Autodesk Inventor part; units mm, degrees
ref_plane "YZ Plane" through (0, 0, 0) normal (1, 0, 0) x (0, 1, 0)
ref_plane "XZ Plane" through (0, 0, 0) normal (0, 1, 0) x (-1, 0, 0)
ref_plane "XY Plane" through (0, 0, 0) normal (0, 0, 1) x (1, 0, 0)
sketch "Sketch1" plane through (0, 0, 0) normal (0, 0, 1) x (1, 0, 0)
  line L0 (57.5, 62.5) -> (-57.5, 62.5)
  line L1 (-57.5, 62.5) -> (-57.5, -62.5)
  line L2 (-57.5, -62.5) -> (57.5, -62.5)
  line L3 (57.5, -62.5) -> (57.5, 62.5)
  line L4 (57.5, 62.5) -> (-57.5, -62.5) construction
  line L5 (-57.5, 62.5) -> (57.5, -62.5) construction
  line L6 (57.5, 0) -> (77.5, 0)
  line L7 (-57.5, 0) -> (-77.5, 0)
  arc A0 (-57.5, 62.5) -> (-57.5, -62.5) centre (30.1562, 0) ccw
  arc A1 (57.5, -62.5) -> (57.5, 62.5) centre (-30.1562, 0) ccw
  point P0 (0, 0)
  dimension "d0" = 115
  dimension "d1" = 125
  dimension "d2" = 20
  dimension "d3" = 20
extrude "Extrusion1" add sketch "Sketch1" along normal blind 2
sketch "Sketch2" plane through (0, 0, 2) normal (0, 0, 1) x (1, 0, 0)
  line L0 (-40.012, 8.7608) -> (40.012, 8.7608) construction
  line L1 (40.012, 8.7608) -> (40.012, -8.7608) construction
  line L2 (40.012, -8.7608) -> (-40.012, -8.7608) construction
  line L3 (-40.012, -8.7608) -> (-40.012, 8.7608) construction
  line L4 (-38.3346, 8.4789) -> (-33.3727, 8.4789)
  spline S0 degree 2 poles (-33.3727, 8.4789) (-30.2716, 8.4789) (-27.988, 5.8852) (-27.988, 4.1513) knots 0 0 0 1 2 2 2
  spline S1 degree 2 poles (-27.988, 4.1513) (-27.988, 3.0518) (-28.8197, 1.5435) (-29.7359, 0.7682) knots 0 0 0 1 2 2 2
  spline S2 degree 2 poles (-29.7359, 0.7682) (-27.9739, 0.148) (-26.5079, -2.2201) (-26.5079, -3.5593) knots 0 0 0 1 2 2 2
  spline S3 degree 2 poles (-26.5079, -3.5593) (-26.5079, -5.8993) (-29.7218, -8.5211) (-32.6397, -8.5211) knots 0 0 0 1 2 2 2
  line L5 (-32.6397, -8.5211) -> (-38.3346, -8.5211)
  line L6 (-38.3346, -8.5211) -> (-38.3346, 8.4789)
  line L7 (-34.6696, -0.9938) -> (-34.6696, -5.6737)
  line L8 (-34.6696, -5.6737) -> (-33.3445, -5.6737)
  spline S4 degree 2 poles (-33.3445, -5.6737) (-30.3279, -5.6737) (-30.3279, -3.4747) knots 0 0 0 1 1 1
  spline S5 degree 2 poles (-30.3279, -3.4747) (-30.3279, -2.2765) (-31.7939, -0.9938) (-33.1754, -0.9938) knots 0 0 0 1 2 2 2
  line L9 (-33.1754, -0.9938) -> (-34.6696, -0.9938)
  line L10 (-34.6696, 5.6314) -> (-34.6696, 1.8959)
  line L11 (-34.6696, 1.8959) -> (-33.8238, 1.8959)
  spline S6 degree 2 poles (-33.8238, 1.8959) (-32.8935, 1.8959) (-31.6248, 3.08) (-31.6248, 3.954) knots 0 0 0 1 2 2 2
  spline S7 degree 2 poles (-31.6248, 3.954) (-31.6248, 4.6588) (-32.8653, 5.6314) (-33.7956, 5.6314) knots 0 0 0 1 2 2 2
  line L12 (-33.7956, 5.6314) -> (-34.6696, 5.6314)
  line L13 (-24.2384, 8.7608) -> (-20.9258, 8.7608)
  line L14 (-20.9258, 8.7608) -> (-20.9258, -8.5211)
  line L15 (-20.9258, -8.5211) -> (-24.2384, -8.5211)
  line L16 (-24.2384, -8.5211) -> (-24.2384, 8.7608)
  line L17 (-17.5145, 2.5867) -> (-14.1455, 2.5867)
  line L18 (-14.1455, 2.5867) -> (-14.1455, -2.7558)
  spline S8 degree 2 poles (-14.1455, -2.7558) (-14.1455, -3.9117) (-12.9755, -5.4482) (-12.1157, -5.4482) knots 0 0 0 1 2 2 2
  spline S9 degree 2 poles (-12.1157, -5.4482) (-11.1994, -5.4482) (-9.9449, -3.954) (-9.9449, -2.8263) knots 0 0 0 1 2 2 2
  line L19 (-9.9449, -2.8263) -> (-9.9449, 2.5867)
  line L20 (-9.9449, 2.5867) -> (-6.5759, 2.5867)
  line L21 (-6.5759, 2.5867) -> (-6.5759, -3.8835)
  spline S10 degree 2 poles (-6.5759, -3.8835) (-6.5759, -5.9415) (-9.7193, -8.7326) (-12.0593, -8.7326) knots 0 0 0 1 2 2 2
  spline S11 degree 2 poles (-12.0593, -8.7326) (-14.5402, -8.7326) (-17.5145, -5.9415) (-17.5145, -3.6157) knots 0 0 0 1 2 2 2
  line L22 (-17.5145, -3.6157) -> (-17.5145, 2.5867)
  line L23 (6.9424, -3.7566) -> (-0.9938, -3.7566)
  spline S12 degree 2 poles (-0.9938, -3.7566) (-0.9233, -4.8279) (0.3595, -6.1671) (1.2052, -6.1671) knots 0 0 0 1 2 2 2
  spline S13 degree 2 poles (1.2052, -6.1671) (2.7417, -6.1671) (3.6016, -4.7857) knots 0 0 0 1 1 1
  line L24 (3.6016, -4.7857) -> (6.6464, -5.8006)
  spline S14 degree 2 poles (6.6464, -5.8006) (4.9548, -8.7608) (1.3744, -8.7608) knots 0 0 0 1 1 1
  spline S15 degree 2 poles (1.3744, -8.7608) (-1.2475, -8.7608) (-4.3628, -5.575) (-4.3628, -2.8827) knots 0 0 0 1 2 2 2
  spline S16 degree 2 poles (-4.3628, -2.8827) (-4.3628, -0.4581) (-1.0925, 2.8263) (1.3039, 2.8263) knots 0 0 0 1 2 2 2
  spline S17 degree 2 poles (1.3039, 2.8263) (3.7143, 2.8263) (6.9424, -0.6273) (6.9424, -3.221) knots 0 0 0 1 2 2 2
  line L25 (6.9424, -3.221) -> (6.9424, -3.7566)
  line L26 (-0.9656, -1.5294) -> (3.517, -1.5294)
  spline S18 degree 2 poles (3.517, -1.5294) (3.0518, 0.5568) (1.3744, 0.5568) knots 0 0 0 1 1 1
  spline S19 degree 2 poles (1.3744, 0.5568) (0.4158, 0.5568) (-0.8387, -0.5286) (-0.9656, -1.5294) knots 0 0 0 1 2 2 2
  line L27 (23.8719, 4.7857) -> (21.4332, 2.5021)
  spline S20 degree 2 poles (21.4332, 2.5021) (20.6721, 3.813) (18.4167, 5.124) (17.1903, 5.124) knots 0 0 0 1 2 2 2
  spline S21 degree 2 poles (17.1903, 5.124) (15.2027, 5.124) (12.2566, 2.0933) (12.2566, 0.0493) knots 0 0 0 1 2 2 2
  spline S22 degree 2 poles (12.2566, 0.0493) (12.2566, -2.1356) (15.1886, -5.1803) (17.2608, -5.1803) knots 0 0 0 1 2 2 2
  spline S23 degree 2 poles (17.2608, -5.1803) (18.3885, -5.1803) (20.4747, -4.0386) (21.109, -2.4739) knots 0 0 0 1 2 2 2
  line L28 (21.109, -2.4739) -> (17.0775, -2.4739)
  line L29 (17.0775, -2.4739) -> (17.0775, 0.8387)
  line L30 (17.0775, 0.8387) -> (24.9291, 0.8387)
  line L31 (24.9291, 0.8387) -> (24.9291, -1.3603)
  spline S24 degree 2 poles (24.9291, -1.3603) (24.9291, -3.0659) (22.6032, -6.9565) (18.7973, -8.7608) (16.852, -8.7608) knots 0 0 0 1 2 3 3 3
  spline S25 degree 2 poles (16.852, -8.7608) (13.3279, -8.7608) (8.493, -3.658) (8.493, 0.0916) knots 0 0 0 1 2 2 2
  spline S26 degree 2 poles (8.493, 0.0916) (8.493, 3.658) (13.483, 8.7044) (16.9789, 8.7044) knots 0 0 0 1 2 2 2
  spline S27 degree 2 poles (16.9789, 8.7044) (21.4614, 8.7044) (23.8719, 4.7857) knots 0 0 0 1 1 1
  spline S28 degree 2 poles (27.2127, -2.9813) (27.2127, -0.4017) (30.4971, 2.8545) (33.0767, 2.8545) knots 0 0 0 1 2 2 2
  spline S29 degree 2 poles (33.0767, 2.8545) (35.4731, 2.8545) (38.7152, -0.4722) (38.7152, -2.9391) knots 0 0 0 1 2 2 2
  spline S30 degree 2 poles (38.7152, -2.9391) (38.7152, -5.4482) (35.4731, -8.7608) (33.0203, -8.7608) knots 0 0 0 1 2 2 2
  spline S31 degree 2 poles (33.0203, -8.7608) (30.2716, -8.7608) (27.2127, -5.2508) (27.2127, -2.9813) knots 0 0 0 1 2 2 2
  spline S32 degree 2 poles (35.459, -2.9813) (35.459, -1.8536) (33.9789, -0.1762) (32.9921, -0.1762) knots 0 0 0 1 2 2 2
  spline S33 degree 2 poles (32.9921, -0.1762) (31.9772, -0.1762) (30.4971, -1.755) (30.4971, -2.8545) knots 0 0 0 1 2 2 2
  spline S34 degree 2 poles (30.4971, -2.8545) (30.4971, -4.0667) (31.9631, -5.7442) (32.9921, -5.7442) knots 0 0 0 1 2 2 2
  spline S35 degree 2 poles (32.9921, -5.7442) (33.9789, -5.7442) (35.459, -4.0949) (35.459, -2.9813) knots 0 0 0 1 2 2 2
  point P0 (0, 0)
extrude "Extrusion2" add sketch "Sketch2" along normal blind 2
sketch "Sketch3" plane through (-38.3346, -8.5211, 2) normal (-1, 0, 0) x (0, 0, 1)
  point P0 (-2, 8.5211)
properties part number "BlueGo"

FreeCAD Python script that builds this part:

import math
import FreeCAD as App
import Part
import Sketcher

V = App.Vector
Q = App.Units.Quantity


def add_polygon(sketch, points):
    """Adds a closed chain of lines whose ends are joined by coincident constraints."""
    first, n = sketch.GeometryCount, len(points)
    for a, b in zip(points, points[1:] + points[:1]):
        sketch.addGeometry(Part.LineSegment(App.Vector(*a, 0), App.Vector(*b, 0)), False)
    for i in range(n):
        sketch.addConstraint(Sketcher.Constraint("Coincident", first + i, 2, first + (i + 1) % n, 1))

doc = App.newDocument("Part")
params = doc.addObject("Spreadsheet::Sheet", "Params")
for row, (alias, value) in enumerate([
    ("sketch1_width", "115 mm"),
    ("pad1_length", "2 mm"),
    ("pad2_length", "2 mm"),
], start=1):
    params.set(f"A{row}", alias)
    params.set(f"B{row}", "=" + value)
    params.setAlias(f"B{row}", alias)

body = doc.addObject("PartDesign::Body", "Body")

# Sketch on XY plane
sketch1 = body.newObject("Sketcher::SketchObject", "Sketch")
sketch1.AttachmentSupport = (doc.getObject("XY_Plane"), [""])
sketch1.MapMode = "FlatFace"
sketch1.addGeometry([
    Part.LineSegment(V(-58, -62, 0), V(58, -62, 0)),
    Part.ArcOfCircle(Part.Circle(V(-30, 0, 0), V(0, 0, 1), 108), math.radians(-35), math.radians(35)),
    Part.LineSegment(V(58, 62, 0), V(-58, 62, 0)),
    Part.ArcOfCircle(Part.Circle(V(30, 0, 0), V(0, 0, 1), 108), math.radians(145), math.radians(215)),
], False)
sketch1.addConstraint([
    Sketcher.Constraint("Coincident", 0, 2, 1, 1),
    Sketcher.Constraint("Coincident", 1, 2, 2, 1),
    Sketcher.Constraint("Coincident", 2, 2, 3, 1),
    Sketcher.Constraint("Coincident", 3, 2, 0, 1),
    Sketcher.Constraint("Horizontal", 0),
    Sketcher.Constraint("Horizontal", 2),
    Sketcher.Constraint("Equal", 1, 3),
    Sketcher.Constraint("Symmetric", 1, 3, 3, 3, -1, 1),
    Sketcher.Constraint("Symmetric", 0, 2, 1, 2, -1),
    Sketcher.Constraint("DistanceX", 0, 1, 0, 2, Q("115 mm")),
    Sketcher.Constraint("DistanceY", 0, 2, 1, 2, Q("125 mm")),
    Sketcher.Constraint("Radius", 1, Q("107.6562 mm")),
])
sketch1.setExpression("Constraints[9]", "Params.sketch1_width")
pad1 = body.newObject("PartDesign::Pad", "Pad")
pad1.Profile = sketch1
pad1.setExpression("Length", "Params.pad1_length")

# Sketch on XY plane
sketch2 = body.newObject("Sketcher::SketchObject", "Sketch001")
sketch2.AttachmentSupport = (doc.getObject("XY_Plane"), [""])
sketch2.MapMode = "FlatFace"
sketch2.AttachmentOffset = App.Placement(V(0, 0, 2), App.Rotation())
sketch2.addGeometry(Part.LineSegment(V(-33.3727, 8.4789, 0), V(-38.3346, 8.4789, 0)), False)  # 0
sketch2.addGeometry(Part.LineSegment(V(-38.3346, 8.4789, 0), V(-38.3346, -8.5211, 0)), False)  # 1
sketch2.addGeometry(Part.LineSegment(V(-38.3346, -8.5211, 0), V(-32.6397, -8.5211, 0)), False)  # 2
sketch2.addGeometry(Part.BSplineCurve([V(-26.5079, -3.5593, 0), V(-26.5079, -5.8993, 0), V(-29.7218, -8.5211, 0), V(-32.6397, -8.5211, 0)], [3, 1, 3], [0, 1, 2], False, 2, [1, 1, 1, 1], False), False)  # 3
sketch2.addGeometry(Part.BSplineCurve([V(-29.7359, 0.7682, 0), V(-27.9739, 0.148, 0), V(-26.5079, -2.2201, 0), V(-26.5079, -3.5593, 0)], [3, 1, 3], [0, 1, 2], False, 2, [1, 1, 1, 1], False), False)  # 4
sketch2.addGeometry(Part.BSplineCurve([V(-27.988, 4.1513, 0), V(-27.988, 3.0518, 0), V(-28.8197, 1.5435, 0), V(-29.7359, 0.7682, 0)], [3, 1, 3], [0, 1, 2], False, 2, [1, 1, 1, 1], False), False)  # 5
sketch2.addGeometry(Part.BSplineCurve([V(-33.3727, 8.4789, 0), V(-30.2716, 8.4789, 0), V(-27.988, 5.8852, 0), V(-27.988, 4.1513, 0)], [3, 1, 3], [0, 1, 2], False, 2, [1, 1, 1, 1], False), False)  # 6
sketch2.addGeometry(Part.LineSegment(V(-34.6696, -5.6737, 0), V(-34.6696, -0.9938, 0)), False)  # 7
sketch2.addGeometry(Part.LineSegment(V(-34.6696, -0.9938, 0), V(-33.1754, -0.9938, 0)), False)  # 8
sketch2.addGeometry(Part.BSplineCurve([V(-30.3279, -3.4747, 0), V(-30.3279, -2.2765, 0), V(-31.7939, -0.9938, 0), V(-33.1754, -0.9938, 0)], [3, 1, 3], [0, 1, 2], False, 2, [1, 1, 1, 1], False), False)  # 9
sketch2.addGeometry(Part.BSplineCurve([V(-33.3445, -5.6737, 0), V(-30.3279, -5.6737, 0), V(-30.3279, -3.4747, 0)], [3, 3], [0, 1], False, 2, [1, 1, 1], False), False)  # 10
sketch2.addGeometry(Part.LineSegment(V(-33.3445, -5.6737, 0), V(-34.6696, -5.6737, 0)), False)  # 11
sketch2.addGeometry(Part.LineSegment(V(-34.6696, 1.8959, 0), V(-34.6696, 5.6314, 0)), False)  # 12
sketch2.addGeometry(Part.LineSegment(V(-34.6696, 5.6314, 0), V(-33.7956, 5.6314, 0)), False)  # 13
sketch2.addGeometry(Part.BSplineCurve([V(-31.6248, 3.954, 0), V(-31.6248, 4.6588, 0), V(-32.8653, 5.6314, 0), V(-33.7956, 5.6314, 0)], [3, 1, 3], [0, 1, 2], False, 2, [1, 1, 1, 1], False), False)  # 14
sketch2.addGeometry(Part.BSplineCurve([V(-33.8238, 1.8959, 0), V(-32.8935, 1.8959, 0), V(-31.6248, 3.08, 0), V(-31.6248, 3.954, 0)], [3, 1, 3], [0, 1, 2], False, 2, [1, 1, 1, 1], False), False)  # 15
sketch2.addGeometry(Part.LineSegment(V(-33.8238, 1.8959, 0), V(-34.6696, 1.8959, 0)), False)  # 16
add_polygon(sketch2, [(-20.9258, 8.7608), (-24.2384, 8.7608), (-24.2384, -8.5211), (-20.9258, -8.5211)])  # lines 17-20
sketch2.addGeometry(Part.LineSegment(V(-14.1455, 2.5867, 0), V(-17.5145, 2.5867, 0)), False)  # 21
sketch2.addGeometry(Part.LineSegment(V(-17.5145, 2.5867, 0), V(-17.5145, -3.6157, 0)), False)  # 22
sketch2.addGeometry(Part.BSplineCurve([V(-12.0593, -8.7326, 0), V(-14.5402, -8.7326, 0), V(-17.5145, -5.9415, 0), V(-17.5145, -3.6157, 0)], [3, 1, 3], [0, 1, 2], False, 2, [1, 1, 1, 1], False), False)  # 23
sketch2.addGeometry(Part.BSplineCurve([V(-6.5759, -3.8835, 0), V(-6.5759, -5.9415, 0), V(-9.7193, -8.7326, 0), V(-12.0593, -8.7326, 0)], [3, 1, 3], [0, 1, 2], False, 2, [1, 1, 1, 1], False), False)  # 24
sketch2.addGeometry(Part.LineSegment(V(-6.5759, -3.8835, 0), V(-6.5759, 2.5867, 0)), False)  # 25
sketch2.addGeometry(Part.LineSegment(V(-6.5759, 2.5867, 0), V(-9.9449, 2.5867, 0)), False)  # 26
sketch2.addGeometry(Part.LineSegment(V(-9.9449, 2.5867, 0), V(-9.9449, -2.8263, 0)), False)  # 27
sketch2.addGeometry(Part.BSplineCurve([V(-12.1157, -5.4482, 0), V(-11.1994, -5.4482, 0), V(-9.9449, -3.954, 0), V(-9.9449, -2.8263, 0)], [3, 1, 3], [0, 1, 2], False, 2, [1, 1, 1, 1], False), False)  # 28
sketch2.addGeometry(Part.BSplineCurve([V(-14.1455, -2.7558, 0), V(-14.1455, -3.9117, 0), V(-12.9755, -5.4482, 0), V(-12.1157, -5.4482, 0)], [3, 1, 3], [0, 1, 2], False, 2, [1, 1, 1, 1], False), False)  # 29
sketch2.addGeometry(Part.LineSegment(V(-14.1455, -2.7558, 0), V(-14.1455, 2.5867, 0)), False)  # 30
sketch2.addGeometry(Part.LineSegment(V(-0.9938, -3.7566, 0), V(6.9424, -3.7566, 0)), False)  # 31
sketch2.addGeometry(Part.LineSegment(V(6.9424, -3.7566, 0), V(6.9424, -3.221, 0)), False)  # 32
sketch2.addGeometry(Part.BSplineCurve([V(1.3039, 2.8263, 0), V(3.7143, 2.8263, 0), V(6.9424, -0.6273, 0), V(6.9424, -3.221, 0)], [3, 1, 3], [0, 1, 2], False, 2, [1, 1, 1, 1], False), False)  # 33
sketch2.addGeometry(Part.BSplineCurve([V(-4.3628, -2.8827, 0), V(-4.3628, -0.4581, 0), V(-1.0925, 2.8263, 0), V(1.3039, 2.8263, 0)], [3, 1, 3], [0, 1, 2], False, 2, [1, 1, 1, 1], False), False)  # 34
sketch2.addGeometry(Part.BSplineCurve([V(1.3744, -8.7608, 0), V(-1.2475, -8.7608, 0), V(-4.3628, -5.575, 0), V(-4.3628, -2.8827, 0)], [3, 1, 3], [0, 1, 2], False, 2, [1, 1, 1, 1], False), False)  # 35
sketch2.addGeometry(Part.BSplineCurve([V(6.6464, -5.8006, 0), V(4.9548, -8.7608, 0), V(1.3744, -8.7608, 0)], [3, 3], [0, 1], False, 2, [1, 1, 1], False), False)  # 36
sketch2.addGeometry(Part.LineSegment(V(6.6464, -5.8006, 0), V(3.6016, -4.7857, 0)), False)  # 37
sketch2.addGeometry(Part.BSplineCurve([V(1.2052, -6.1671, 0), V(2.7417, -6.1671, 0), V(3.6016, -4.7857, 0)], [3, 3], [0, 1], False, 2, [1, 1, 1], False), False)  # 38
sketch2.addGeometry(Part.BSplineCurve([V(-0.9938, -3.7566, 0), V(-0.9233, -4.8279, 0), V(0.3595, -6.1671, 0), V(1.2052, -6.1671, 0)], [3, 1, 3], [0, 1, 2], False, 2, [1, 1, 1, 1], False), False)  # 39
sketch2.addGeometry(Part.LineSegment(V(3.517, -1.5294, 0), V(-0.9656, -1.5294, 0)), False)  # 40
sketch2.addGeometry(Part.BSplineCurve([V(1.3744, 0.5568, 0), V(0.4158, 0.5568, 0), V(-0.8387, -0.5286, 0), V(-0.9656, -1.5294, 0)], [3, 1, 3], [0, 1, 2], False, 2, [1, 1, 1, 1], False), False)  # 41
sketch2.addGeometry(Part.BSplineCurve([V(3.517, -1.5294, 0), V(3.0518, 0.5568, 0), V(1.3744, 0.5568, 0)], [3, 3], [0, 1], False, 2, [1, 1, 1], False), False)  # 42
sketch2.addGeometry(Part.LineSegment(V(21.4332, 2.5021, 0), V(23.8719, 4.7857, 0)), False)  # 43
sketch2.addGeometry(Part.BSplineCurve([V(16.9789, 8.7044, 0), V(21.4614, 8.7044, 0), V(23.8719, 4.7857, 0)], [3, 3], [0, 1], False, 2, [1, 1, 1], False), False)  # 44
sketch2.addGeometry(Part.BSplineCurve([V(8.493, 0.0916, 0), V(8.493, 3.658, 0), V(13.483, 8.7044, 0), V(16.9789, 8.7044, 0)], [3, 1, 3], [0, 1, 2], False, 2, [1, 1, 1, 1], False), False)  # 45
sketch2.addGeometry(Part.BSplineCurve([V(16.852, -8.7608, 0), V(13.3279, -8.7608, 0), V(8.493, -3.658, 0), V(8.493, 0.0916, 0)], [3, 1, 3], [0, 1, 2], False, 2, [1, 1, 1, 1], False), False)  # 46
sketch2.addGeometry(Part.BSplineCurve([V(24.9291, -1.3603, 0), V(24.9291, -3.0659, 0), V(22.6032, -6.9565, 0), V(18.7973, -8.7608, 0), V(16.852, -8.7608, 0)], [3, 1, 1, 3], [0, 1, 2, 3], False, 2, [1, 1, 1, 1, 1], False), False)  # 47
sketch2.addGeometry(Part.LineSegment(V(24.9291, -1.3603, 0), V(24.9291, 0.8387, 0)), False)  # 48
sketch2.addGeometry(Part.LineSegment(V(24.9291, 0.8387, 0), V(17.0775, 0.8387, 0)), False)  # 49
sketch2.addGeometry(Part.LineSegment(V(17.0775, 0.8387, 0), V(17.0775, -2.4739, 0)), False)  # 50
sketch2.addGeometry(Part.LineSegment(V(17.0775, -2.4739, 0), V(21.109, -2.4739, 0)), False)  # 51
sketch2.addGeometry(Part.BSplineCurve([V(17.2608, -5.1803, 0), V(18.3885, -5.1803, 0), V(20.4747, -4.0386, 0), V(21.109, -2.4739, 0)], [3, 1, 3], [0, 1, 2], False, 2, [1, 1, 1, 1], False), False)  # 52
sketch2.addGeometry(Part.BSplineCurve([V(12.2566, 0.0493, 0), V(12.2566, -2.1356, 0), V(15.1886, -5.1803, 0), V(17.2608, -5.1803, 0)], [3, 1, 3], [0, 1, 2], False, 2, [1, 1, 1, 1], False), False)  # 53
sketch2.addGeometry(Part.BSplineCurve([V(17.1903, 5.124, 0), V(15.2027, 5.124, 0), V(12.2566, 2.0933, 0), V(12.2566, 0.0493, 0)], [3, 1, 3], [0, 1, 2], False, 2, [1, 1, 1, 1], False), False)  # 54
sketch2.addGeometry(Part.BSplineCurve([V(21.4332, 2.5021, 0), V(20.6721, 3.813, 0), V(18.4167, 5.124, 0), V(17.1903, 5.124, 0)], [3, 1, 3], [0, 1, 2], False, 2, [1, 1, 1, 1], False), False)  # 55
sketch2.addGeometry(Part.BSplineCurve([V(27.2127, -2.9813, 0), V(27.2127, -0.4017, 0), V(30.4971, 2.8545, 0), V(33.0767, 2.8545, 0)], [3, 1, 3], [0, 1, 2], False, 2, [1, 1, 1, 1], False), False)  # 56
sketch2.addGeometry(Part.BSplineCurve([V(33.0203, -8.7608, 0), V(30.2716, -8.7608, 0), V(27.2127, -5.2508, 0), V(27.2127, -2.9813, 0)], [3, 1, 3], [0, 1, 2], False, 2, [1, 1, 1, 1], False), False)  # 57
sketch2.addGeometry(Part.BSplineCurve([V(38.7152, -2.9391, 0), V(38.7152, -5.4482, 0), V(35.4731, -8.7608, 0), V(33.0203, -8.7608, 0)], [3, 1, 3], [0, 1, 2], False, 2, [1, 1, 1, 1], False), False)  # 58
sketch2.addGeometry(Part.BSplineCurve([V(33.0767, 2.8545, 0), V(35.4731, 2.8545, 0), V(38.7152, -0.4722, 0), V(38.7152, -2.9391, 0)], [3, 1, 3], [0, 1, 2], False, 2, [1, 1, 1, 1], False), False)  # 59
sketch2.addGeometry(Part.BSplineCurve([V(35.459, -2.9813, 0), V(35.459, -1.8536, 0), V(33.9789, -0.1762, 0), V(32.9921, -0.1762, 0)], [3, 1, 3], [0, 1, 2], False, 2, [1, 1, 1, 1], False), False)  # 60
sketch2.addGeometry(Part.BSplineCurve([V(32.9921, -5.7442, 0), V(33.9789, -5.7442, 0), V(35.459, -4.0949, 0), V(35.459, -2.9813, 0)], [3, 1, 3], [0, 1, 2], False, 2, [1, 1, 1, 1], False), False)  # 61
sketch2.addGeometry(Part.BSplineCurve([V(30.4971, -2.8545, 0), V(30.4971, -4.0667, 0), V(31.9631, -5.7442, 0), V(32.9921, -5.7442, 0)], [3, 1, 3], [0, 1, 2], False, 2, [1, 1, 1, 1], False), False)  # 62
sketch2.addGeometry(Part.BSplineCurve([V(32.9921, -0.1762, 0), V(31.9772, -0.1762, 0), V(30.4971, -1.755, 0), V(30.4971, -2.8545, 0)], [3, 1, 3], [0, 1, 2], False, 2, [1, 1, 1, 1], False), False)  # 63
sketch2.addConstraint([
    Sketcher.Constraint("Block", 3),
    Sketcher.Constraint("Block", 4),
    Sketcher.Constraint("Block", 5),
    Sketcher.Constraint("Block", 6),
    Sketcher.Constraint("Block", 9),
    Sketcher.Constraint("Block", 10),
    Sketcher.Constraint("Block", 14),
    Sketcher.Constraint("Block", 15),
    Sketcher.Constraint("Block", 23),
    Sketcher.Constraint("Block", 24),
    Sketcher.Constraint("Block", 28),
    Sketcher.Constraint("Block", 29),
    Sketcher.Constraint("Block", 33),
    Sketcher.Constraint("Block", 34),
    Sketcher.Constraint("Block", 35),
    Sketcher.Constraint("Block", 36),
    Sketcher.Constraint("Block", 38),
    Sketcher.Constraint("Block", 39),
    Sketcher.Constraint("Block", 41),
    Sketcher.Constraint("Block", 42),
    Sketcher.Constraint("Block", 44),
    Sketcher.Constraint("Block", 45),
    Sketcher.Constraint("Block", 46),
    Sketcher.Constraint("Block", 47),
    Sketcher.Constraint("Block", 52),
    Sketcher.Constraint("Block", 53),
    Sketcher.Constraint("Block", 54),
    Sketcher.Constraint("Block", 55),
    Sketcher.Constraint("Block", 56),
    Sketcher.Constraint("Block", 57),
    Sketcher.Constraint("Block", 58),
    Sketcher.Constraint("Block", 59),
    Sketcher.Constraint("Block", 60),
    Sketcher.Constraint("Block", 61),
    Sketcher.Constraint("Block", 62),
    Sketcher.Constraint("Block", 63),
    Sketcher.Constraint("Coincident", 0, 2, 1, 1),
    Sketcher.Constraint("Coincident", 1, 2, 2, 1),
    Sketcher.Constraint("Coincident", 2, 2, 3, 2),
    Sketcher.Constraint("Coincident", 6, 1, 0, 1),
    Sketcher.Constraint("Coincident", 7, 2, 8, 1),
    Sketcher.Constraint("Coincident", 8, 2, 9, 2),
    Sketcher.Constraint("Coincident", 10, 1, 11, 1),
    Sketcher.Constraint("Coincident", 11, 2, 7, 1),
    Sketcher.Constraint("Coincident", 12, 2, 13, 1),
    Sketcher.Constraint("Coincident", 13, 2, 14, 2),
    Sketcher.Constraint("Coincident", 15, 1, 16, 1),
    Sketcher.Constraint("Coincident", 16, 2, 12, 1),
    Sketcher.Constraint("Coincident", 21, 2, 22, 1),
    Sketcher.Constraint("Coincident", 22, 2, 23, 2),
    Sketcher.Constraint("Coincident", 24, 1, 25, 1),
    Sketcher.Constraint("Coincident", 25, 2, 26, 1),
    Sketcher.Constraint("Coincident", 26, 2, 27, 1),
    Sketcher.Constraint("Coincident", 27, 2, 28, 2),
    Sketcher.Constraint("Coincident", 29, 1, 30, 1),
    Sketcher.Constraint("Coincident", 30, 2, 21, 1),
    Sketcher.Constraint("Coincident", 31, 2, 32, 1),
    Sketcher.Constraint("Coincident", 32, 2, 33, 2),
    Sketcher.Constraint("Coincident", 36, 1, 37, 1),
    Sketcher.Constraint("Coincident", 37, 2, 38, 2),
    Sketcher.Constraint("Coincident", 39, 1, 31, 1),
    Sketcher.Constraint("Coincident", 40, 2, 41, 2),
    Sketcher.Constraint("Coincident", 42, 1, 40, 1),
    Sketcher.Constraint("Coincident", 43, 2, 44, 2),
    Sketcher.Constraint("Coincident", 47, 1, 48, 1),
    Sketcher.Constraint("Coincident", 48, 2, 49, 1),
    Sketcher.Constraint("Coincident", 49, 2, 50, 1),
    Sketcher.Constraint("Coincident", 50, 2, 51, 1),
    Sketcher.Constraint("Coincident", 51, 2, 52, 2),
    Sketcher.Constraint("Coincident", 55, 1, 43, 1),
    Sketcher.Constraint("Horizontal", 0),
    Sketcher.Constraint("Vertical", 1),
    Sketcher.Constraint("Horizontal", 2),
    Sketcher.Constraint("Vertical", 7),
    Sketcher.Constraint("Horizontal", 8),
    Sketcher.Constraint("Horizontal", 11),
    Sketcher.Constraint("Vertical", 12),
    Sketcher.Constraint("Horizontal", 13),
    Sketcher.Constraint("Horizontal", 16),
    Sketcher.Constraint("Horizontal", 17),
    Sketcher.Constraint("Vertical", 18),
    Sketcher.Constraint("Horizontal", 19),
    Sketcher.Constraint("Vertical", 20),
    Sketcher.Constraint("Horizontal", 21),
    Sketcher.Constraint("Vertical", 22),
    Sketcher.Constraint("Vertical", 25),
    Sketcher.Constraint("Horizontal", 26),
    Sketcher.Constraint("Vertical", 27),
    Sketcher.Constraint("Vertical", 30),
    Sketcher.Constraint("Horizontal", 31),
    Sketcher.Constraint("Vertical", 32),
    Sketcher.Constraint("Vertical", 48),
    Sketcher.Constraint("Horizontal", 49),
    Sketcher.Constraint("Vertical", 50),
    Sketcher.Constraint("Horizontal", 51),
    Sketcher.Constraint("DistanceX", 0, 2, 0, 1, Q("4.962 mm")),
    Sketcher.Constraint("DistanceX", 11, 2, 11, 1, Q("1.325 mm")),
    Sketcher.Constraint("DistanceX", 13, 1, 13, 2, Q("0.874 mm")),
    Sketcher.Constraint("DistanceY", 18, 2, 18, 1, Q("17.282 mm")),
    Sketcher.Constraint("DistanceY", 27, 2, 27, 1, Q("5.413 mm")),
    Sketcher.Constraint("DistanceY", 48, 1, 48, 2, Q("2.199 mm")),
    Sketcher.Constraint("DistanceX", 20, 2, 25, 2, Q("14.35 mm")),
    Sketcher.Constraint("DistanceX", 17, 2, 17, 1, Q("3.3126 mm")),
    Sketcher.Constraint("DistanceX", 49, 2, 49, 1, Q("7.8516 mm")),
    Sketcher.Constraint("DistanceY", 22, 2, 22, 1, Q("6.2024 mm")),
    Sketcher.Constraint("DistanceY", 18, 2, -1, 1, Q("8.521 mm")),
])
pad2 = body.newObject("PartDesign::Pad", "Pad001")
pad2.Profile = sketch2
pad2.setExpression("Length", "Params.pad2_length")

doc.recompute()
